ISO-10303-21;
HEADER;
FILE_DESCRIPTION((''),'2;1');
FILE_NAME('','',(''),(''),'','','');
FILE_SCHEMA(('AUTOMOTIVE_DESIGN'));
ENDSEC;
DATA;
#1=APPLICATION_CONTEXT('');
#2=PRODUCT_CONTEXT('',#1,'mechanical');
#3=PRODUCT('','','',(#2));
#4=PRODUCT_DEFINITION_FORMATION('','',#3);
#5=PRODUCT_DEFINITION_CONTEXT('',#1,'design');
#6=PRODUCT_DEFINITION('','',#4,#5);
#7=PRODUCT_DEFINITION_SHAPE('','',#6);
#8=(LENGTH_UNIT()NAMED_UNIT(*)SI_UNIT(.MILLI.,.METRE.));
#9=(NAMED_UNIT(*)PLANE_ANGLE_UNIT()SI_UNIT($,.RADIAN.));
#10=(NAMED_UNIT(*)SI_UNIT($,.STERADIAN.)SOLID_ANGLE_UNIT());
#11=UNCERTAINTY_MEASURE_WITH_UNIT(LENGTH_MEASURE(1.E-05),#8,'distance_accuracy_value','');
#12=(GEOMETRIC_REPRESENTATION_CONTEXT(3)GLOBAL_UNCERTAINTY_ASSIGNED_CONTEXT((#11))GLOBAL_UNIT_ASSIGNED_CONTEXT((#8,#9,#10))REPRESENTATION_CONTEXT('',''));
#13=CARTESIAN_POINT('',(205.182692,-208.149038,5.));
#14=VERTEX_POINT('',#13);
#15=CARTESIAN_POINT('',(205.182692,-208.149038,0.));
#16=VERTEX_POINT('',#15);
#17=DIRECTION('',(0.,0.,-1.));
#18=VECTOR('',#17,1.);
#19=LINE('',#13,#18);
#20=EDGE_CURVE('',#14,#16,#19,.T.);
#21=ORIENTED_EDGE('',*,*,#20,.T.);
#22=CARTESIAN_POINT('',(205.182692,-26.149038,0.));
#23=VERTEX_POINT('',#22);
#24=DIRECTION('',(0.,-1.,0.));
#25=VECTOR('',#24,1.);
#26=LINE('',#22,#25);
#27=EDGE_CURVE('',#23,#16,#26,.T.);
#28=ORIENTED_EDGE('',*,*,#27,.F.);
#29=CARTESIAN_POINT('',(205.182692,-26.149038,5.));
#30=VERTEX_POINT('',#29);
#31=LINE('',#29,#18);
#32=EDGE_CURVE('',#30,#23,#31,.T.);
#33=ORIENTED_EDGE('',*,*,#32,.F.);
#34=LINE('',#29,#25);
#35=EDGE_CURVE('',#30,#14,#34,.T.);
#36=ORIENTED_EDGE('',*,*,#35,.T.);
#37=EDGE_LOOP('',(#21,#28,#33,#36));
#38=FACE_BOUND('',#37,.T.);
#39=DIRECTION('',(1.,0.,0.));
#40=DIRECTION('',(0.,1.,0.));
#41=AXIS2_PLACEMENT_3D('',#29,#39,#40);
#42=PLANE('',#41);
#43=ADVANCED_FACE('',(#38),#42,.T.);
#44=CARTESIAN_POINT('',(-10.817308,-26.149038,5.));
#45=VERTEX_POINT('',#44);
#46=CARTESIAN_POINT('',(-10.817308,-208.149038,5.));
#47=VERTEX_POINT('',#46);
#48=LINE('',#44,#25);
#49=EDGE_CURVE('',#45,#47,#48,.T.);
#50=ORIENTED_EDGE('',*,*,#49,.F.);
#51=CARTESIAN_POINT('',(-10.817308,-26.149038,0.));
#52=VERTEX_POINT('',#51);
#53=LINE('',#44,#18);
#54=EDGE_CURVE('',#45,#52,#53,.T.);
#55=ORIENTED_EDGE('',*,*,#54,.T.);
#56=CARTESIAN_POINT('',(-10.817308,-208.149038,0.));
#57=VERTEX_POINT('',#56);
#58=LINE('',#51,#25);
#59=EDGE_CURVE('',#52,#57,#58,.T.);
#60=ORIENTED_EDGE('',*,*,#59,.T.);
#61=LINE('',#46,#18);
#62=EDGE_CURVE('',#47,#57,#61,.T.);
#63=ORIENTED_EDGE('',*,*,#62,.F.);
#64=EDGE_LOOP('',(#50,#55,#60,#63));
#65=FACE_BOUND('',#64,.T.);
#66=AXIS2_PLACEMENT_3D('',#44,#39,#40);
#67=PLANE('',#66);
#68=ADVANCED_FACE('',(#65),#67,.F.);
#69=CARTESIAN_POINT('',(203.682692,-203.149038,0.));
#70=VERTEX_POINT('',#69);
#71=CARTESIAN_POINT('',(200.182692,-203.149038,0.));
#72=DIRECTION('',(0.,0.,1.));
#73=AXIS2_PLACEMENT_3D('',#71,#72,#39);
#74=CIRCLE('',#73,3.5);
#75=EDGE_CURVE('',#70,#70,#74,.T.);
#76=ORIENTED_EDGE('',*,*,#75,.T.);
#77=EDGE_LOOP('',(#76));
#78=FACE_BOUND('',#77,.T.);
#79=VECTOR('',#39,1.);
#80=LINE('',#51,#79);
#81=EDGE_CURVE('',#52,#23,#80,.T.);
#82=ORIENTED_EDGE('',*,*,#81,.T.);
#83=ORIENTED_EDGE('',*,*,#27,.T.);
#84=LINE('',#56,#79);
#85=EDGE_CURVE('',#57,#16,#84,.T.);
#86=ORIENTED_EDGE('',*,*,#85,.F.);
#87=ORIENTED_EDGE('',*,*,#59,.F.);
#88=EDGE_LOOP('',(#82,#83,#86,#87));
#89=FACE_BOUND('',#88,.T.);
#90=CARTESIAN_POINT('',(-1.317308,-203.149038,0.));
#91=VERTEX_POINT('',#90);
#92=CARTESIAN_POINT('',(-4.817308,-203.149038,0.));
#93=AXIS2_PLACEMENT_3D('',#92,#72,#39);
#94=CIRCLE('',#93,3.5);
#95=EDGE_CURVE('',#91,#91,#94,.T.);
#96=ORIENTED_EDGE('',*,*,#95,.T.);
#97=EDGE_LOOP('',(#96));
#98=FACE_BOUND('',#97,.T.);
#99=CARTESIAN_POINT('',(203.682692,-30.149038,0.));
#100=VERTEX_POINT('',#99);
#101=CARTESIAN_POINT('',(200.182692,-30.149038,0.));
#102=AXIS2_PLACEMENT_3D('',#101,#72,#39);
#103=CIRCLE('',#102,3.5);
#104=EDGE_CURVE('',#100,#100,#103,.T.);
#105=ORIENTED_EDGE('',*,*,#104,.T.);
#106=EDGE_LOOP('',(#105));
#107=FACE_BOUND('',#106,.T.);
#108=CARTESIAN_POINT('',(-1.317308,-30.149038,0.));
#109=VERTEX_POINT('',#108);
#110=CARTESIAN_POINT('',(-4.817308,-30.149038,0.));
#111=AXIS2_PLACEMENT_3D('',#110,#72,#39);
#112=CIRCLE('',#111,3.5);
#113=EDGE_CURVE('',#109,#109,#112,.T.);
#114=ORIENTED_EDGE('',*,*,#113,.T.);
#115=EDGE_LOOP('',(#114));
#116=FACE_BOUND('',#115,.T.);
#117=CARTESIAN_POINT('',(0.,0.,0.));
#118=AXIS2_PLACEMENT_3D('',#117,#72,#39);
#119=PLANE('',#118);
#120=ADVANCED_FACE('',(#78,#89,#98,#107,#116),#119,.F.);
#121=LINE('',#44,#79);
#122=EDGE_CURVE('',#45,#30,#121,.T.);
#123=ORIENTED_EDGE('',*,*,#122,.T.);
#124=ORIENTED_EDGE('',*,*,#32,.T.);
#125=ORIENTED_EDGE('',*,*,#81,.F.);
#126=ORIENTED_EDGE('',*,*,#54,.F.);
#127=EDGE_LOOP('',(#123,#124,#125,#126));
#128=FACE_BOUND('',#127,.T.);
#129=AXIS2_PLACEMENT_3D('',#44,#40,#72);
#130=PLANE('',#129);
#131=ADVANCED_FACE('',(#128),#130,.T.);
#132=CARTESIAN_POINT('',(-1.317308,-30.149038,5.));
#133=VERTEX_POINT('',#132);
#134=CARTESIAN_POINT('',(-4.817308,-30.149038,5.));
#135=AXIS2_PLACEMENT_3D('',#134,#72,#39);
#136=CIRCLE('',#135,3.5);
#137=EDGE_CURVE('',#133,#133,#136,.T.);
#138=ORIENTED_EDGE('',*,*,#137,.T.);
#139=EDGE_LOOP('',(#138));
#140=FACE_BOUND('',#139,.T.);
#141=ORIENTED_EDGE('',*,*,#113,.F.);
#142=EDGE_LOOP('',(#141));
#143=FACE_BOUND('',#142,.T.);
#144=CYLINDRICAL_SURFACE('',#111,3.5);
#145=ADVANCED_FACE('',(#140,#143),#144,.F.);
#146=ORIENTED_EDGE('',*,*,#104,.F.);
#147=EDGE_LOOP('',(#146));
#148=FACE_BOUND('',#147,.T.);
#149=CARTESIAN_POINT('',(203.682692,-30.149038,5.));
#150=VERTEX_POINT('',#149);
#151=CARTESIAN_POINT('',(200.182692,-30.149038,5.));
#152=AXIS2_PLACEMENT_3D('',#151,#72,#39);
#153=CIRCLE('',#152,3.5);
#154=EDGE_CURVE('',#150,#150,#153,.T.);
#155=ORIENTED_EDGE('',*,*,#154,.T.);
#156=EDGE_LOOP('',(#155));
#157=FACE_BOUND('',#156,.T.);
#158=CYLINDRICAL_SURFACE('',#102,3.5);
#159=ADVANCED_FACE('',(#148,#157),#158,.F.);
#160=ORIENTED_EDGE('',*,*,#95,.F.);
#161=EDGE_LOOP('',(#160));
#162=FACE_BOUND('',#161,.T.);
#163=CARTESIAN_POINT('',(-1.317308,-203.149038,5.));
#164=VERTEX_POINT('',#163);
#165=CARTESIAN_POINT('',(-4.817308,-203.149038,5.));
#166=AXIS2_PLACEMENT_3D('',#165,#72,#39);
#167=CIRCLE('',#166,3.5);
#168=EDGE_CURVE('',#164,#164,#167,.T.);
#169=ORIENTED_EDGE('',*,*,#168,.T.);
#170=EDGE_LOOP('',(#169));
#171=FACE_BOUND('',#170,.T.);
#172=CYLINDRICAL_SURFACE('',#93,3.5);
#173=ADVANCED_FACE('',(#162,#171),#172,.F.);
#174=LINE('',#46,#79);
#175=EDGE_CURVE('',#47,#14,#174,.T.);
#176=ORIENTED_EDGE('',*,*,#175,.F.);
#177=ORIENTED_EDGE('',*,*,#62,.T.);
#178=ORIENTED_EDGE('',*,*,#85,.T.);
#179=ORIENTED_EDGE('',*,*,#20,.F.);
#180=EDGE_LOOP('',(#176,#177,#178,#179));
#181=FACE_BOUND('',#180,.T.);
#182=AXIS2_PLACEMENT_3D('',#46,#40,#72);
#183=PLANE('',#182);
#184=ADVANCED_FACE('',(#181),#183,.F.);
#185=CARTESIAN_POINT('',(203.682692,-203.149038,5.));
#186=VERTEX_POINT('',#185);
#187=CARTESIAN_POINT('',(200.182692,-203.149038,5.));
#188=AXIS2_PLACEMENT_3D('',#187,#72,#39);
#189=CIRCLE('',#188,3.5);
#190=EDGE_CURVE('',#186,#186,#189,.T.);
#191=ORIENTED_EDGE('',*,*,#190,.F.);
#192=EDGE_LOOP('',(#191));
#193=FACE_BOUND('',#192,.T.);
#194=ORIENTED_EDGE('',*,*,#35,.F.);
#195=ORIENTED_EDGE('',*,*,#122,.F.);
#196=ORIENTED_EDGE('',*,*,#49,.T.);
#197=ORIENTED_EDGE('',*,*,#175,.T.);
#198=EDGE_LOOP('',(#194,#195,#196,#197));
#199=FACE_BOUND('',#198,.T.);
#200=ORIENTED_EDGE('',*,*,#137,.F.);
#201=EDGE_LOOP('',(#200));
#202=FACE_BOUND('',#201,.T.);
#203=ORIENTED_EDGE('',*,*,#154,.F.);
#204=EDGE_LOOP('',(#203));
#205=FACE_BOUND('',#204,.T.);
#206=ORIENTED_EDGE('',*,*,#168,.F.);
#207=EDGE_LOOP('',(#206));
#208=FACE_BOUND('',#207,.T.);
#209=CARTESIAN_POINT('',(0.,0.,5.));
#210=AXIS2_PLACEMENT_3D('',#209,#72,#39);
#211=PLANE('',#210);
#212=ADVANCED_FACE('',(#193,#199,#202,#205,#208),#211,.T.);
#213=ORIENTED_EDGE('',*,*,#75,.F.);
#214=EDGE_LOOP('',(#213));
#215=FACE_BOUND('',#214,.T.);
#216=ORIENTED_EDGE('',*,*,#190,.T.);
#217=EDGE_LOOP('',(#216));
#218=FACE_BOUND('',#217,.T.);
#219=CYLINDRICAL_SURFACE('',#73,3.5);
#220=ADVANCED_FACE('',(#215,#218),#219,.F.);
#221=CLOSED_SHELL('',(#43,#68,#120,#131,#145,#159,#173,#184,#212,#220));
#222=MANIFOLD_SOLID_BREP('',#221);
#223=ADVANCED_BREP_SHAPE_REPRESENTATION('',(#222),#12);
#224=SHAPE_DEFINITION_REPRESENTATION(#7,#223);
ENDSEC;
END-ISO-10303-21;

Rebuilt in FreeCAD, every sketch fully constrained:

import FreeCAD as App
import Part
import Sketcher
from FreeCAD import Vector
Q = App.Units.Quantity


def add_polygon(sketch, points):
    """Adds a closed chain of lines whose ends are joined by coincident constraints."""
    first, n = sketch.GeometryCount, len(points)
    for a, b in zip(points, points[1:] + points[:1]):
        sketch.addGeometry(Part.LineSegment(App.Vector(*a, 0), App.Vector(*b, 0)), False)
    for i in range(n):
        sketch.addConstraint(Sketcher.Constraint("Coincident", first + i, 2, first + (i + 1) % n, 1))

doc = App.newDocument("Part")
params = doc.addObject("Spreadsheet::Sheet", "Params")
for row, (alias, value) in enumerate([
    ("sketch1_width", "216 mm"),
    ("sketch1_height", "182 mm"),
    ("pad1_length", "5 mm"),
    ("sketch2_diameter", "7 mm"),
], start=1):
    params.set(f"A{row}", alias)
    params.set(f"B{row}", "=" + value)
    params.setAlias(f"B{row}", alias)

body = doc.addObject("PartDesign::Body", "Body")

sketch1 = body.newObject("Sketcher::SketchObject", "Sketch")
sketch1.AttachmentSupport = (doc.getObject("XY_Plane"), [""])
sketch1.MapMode = "FlatFace"
add_polygon(sketch1, [(-10.817308, -26.149038), (-10.817308, -208.149038), (205.182692, -208.149038), (205.182692, -26.149038)])
sketch1.addConstraint(Sketcher.Constraint("Vertical", 0))
sketch1.addConstraint(Sketcher.Constraint("Horizontal", 1))
sketch1.addConstraint(Sketcher.Constraint("Vertical", 2))
sketch1.addConstraint(Sketcher.Constraint("Horizontal", 3))
sketch1.addConstraint(Sketcher.Constraint("DistanceX", 1, 1, 1, 2, Q("216 mm")))
sketch1.addConstraint(Sketcher.Constraint("DistanceY", 0, 2, 0, 1, Q("182 mm")))
sketch1.addConstraint(Sketcher.Constraint("DistanceY", 0, 2, -1, 1, Q("208.149038 mm")))
sketch1.addConstraint(Sketcher.Constraint("DistanceX", 0, 2, -1, 1, Q("10.817308 mm")))
sketch1.setExpression("Constraints[8]", "Params.sketch1_width")
sketch1.setExpression("Constraints[9]", "Params.sketch1_height")
pad1 = body.newObject("PartDesign::Pad", "Pad")
pad1.Profile = sketch1
pad1.setExpression("Length", "Params.pad1_length")

sketch2 = body.newObject("Sketcher::SketchObject", "Sketch001")
sketch2.AttachmentSupport = (doc.getObject("XY_Plane"), [""])
sketch2.MapMode = "FlatFace"
sketch2.AttachmentOffset = App.Placement(Vector(0, 0, 5), App.Rotation())
sketch2.addGeometry(Part.Circle(Vector(200.182692, -203.149038, 0), Vector(0, 0, 1), 3.5), False)
sketch2.addGeometry(Part.Circle(Vector(-4.817308, -203.149038, 0), Vector(0, 0, 1), 3.5), False)
sketch2.addGeometry(Part.Circle(Vector(-4.817308, -30.149038, 0), Vector(0, 0, 1), 3.5), False)
sketch2.addGeometry(Part.Circle(Vector(200.182692, -30.149038, 0), Vector(0, 0, 1), 3.5), False)
sketch2.addConstraint(Sketcher.Constraint("Equal", 0, 1))
sketch2.addConstraint(Sketcher.Constraint("Equal", 1, 2))
sketch2.addConstraint(Sketcher.Constraint("Equal", 2, 3))
sketch2.addConstraint(Sketcher.Constraint("Horizontal", 0, 3, 1, 3))
sketch2.addConstraint(Sketcher.Constraint("Horizontal", 2, 3, 3, 3))
sketch2.addConstraint(Sketcher.Constraint("Vertical", 1, 3, 2, 3))
sketch2.addConstraint(Sketcher.Constraint("Vertical", 0, 3, 3, 3))
sketch2.addConstraint(Sketcher.Constraint("Diameter", 0, Q("7 mm")))
sketch2.addConstraint(Sketcher.Constraint("DistanceX", 1, 3, 0, 3, Q("205 mm")))
sketch2.addConstraint(Sketcher.Constraint("DistanceY", 1, 3, 2, 3, Q("173 mm")))
sketch2.addConstraint(Sketcher.Constraint("DistanceY", 0, 3, -1, 1, Q("203.149038 mm")))
sketch2.addConstraint(Sketcher.Constraint("DistanceX", -1, 1, 0, 3, Q("200.182692 mm")))
sketch2.setExpression("Constraints[7]", "Params.sketch2_diameter")
pocket1 = body.newObject("PartDesign::Pocket", "Pocket")
pocket1.Profile = sketch2
pocket1.Type = "ThroughAll"

doc.recompute()
